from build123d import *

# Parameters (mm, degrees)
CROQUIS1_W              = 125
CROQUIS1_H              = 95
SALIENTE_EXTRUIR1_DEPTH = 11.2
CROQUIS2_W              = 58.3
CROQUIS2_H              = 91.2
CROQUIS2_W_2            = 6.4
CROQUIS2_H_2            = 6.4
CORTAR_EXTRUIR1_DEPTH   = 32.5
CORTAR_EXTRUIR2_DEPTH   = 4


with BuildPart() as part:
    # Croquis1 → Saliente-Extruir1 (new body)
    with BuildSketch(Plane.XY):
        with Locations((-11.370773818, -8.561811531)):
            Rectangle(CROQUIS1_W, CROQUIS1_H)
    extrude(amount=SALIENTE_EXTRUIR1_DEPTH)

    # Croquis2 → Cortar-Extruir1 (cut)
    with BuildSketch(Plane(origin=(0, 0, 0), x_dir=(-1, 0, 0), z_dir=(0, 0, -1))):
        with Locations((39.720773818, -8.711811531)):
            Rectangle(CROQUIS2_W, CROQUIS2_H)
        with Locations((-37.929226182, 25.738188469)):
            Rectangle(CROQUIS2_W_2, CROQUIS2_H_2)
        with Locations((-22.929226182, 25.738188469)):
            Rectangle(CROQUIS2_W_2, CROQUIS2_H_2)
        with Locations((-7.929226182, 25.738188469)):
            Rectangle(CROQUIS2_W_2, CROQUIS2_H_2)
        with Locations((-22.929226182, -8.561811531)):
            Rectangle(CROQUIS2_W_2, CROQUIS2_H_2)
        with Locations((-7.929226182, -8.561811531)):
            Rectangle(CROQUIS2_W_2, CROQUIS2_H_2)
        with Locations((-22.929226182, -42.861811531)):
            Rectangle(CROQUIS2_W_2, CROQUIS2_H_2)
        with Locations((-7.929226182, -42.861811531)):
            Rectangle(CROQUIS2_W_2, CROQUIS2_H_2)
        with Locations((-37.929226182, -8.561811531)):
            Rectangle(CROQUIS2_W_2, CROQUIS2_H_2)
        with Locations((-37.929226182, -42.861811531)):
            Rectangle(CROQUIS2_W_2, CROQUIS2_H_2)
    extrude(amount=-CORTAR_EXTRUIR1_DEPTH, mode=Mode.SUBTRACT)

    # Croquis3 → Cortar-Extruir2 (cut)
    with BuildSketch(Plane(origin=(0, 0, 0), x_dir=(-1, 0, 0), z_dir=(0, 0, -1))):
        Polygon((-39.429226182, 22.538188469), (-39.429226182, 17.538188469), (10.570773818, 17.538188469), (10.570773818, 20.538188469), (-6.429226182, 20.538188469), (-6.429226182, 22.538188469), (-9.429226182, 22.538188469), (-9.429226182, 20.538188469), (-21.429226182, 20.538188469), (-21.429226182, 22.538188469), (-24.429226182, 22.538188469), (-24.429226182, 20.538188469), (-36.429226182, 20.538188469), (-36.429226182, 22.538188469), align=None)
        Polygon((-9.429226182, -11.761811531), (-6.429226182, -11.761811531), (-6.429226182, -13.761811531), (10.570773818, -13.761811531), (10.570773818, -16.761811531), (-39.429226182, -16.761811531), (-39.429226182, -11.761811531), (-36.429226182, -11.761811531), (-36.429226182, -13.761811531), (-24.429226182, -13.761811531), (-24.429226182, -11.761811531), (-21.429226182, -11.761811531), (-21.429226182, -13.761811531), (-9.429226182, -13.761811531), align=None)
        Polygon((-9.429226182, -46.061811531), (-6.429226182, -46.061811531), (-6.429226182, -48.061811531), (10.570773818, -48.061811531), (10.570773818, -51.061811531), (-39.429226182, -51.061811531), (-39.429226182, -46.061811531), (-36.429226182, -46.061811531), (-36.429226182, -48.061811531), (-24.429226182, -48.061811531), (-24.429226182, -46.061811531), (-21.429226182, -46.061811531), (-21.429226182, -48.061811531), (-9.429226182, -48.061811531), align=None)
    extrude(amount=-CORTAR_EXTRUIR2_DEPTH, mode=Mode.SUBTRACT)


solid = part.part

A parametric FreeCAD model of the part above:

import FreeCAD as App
import Part
import Sketcher
from FreeCAD import Vector

doc = App.newDocument("Part")
body = doc.addObject("PartDesign::Body", "Body")

sketch1 = body.newObject("Sketcher::SketchObject", "Sketch")
sketch1.AttachmentSupport = (doc.getObject("XY_Plane"), [""])
sketch1.MapMode = "FlatFace"
sketch1.addGeometry([
    Part.LineSegment(Vector(-74, 39, 0), Vector(-74, -56, 0)),
    Part.LineSegment(Vector(-74, -56, 0), Vector(51, -56, 0)),
    Part.LineSegment(Vector(51, -56, 0), Vector(51, 39, 0)),
    Part.LineSegment(Vector(51, 39, 0), Vector(-74, 39, 0)),
], False)
sketch1.addConstraint([
    Sketcher.Constraint("Coincident", 0, 2, 1, 1),
    Sketcher.Constraint("Coincident", 1, 2, 2, 1),
    Sketcher.Constraint("Coincident", 2, 2, 3, 1),
    Sketcher.Constraint("Coincident", 3, 2, 0, 1),
    Sketcher.Constraint("Vertical", 0),
    Sketcher.Constraint("Horizontal", 1),
    Sketcher.Constraint("Vertical", 2),
    Sketcher.Constraint("Horizontal", 3),
    Sketcher.Constraint("DistanceX", 1, 1, 1, 2, 125.0),
    Sketcher.Constraint("DistanceY", 0, 2, 0, 1, 95.0),
    Sketcher.Constraint("DistanceY", 0, 2, -1, 1, 56.061812),
    Sketcher.Constraint("DistanceX", 0, 2, -1, 1, 73.870774),
])
pad1 = body.newObject("PartDesign::Pad", "Pad")
pad1.Profile = sketch1
pad1.Length = 11.2

sketch2 = body.newObject("Sketcher::SketchObject", "Sketch001")
sketch2.AttachmentSupport = (doc.getObject("XY_Plane"), [""])
sketch2.MapMode = "FlatFace"
sketch2.addGeometry([
    Part.LineSegment(Vector(-11, 37, 0), Vector(-11, -54, 0)),
    Part.LineSegment(Vector(-11, -54, 0), Vector(-69, -54, 0)),
    Part.LineSegment(Vector(-69, -54, 0), Vector(-69, 37, 0)),
    Part.LineSegment(Vector(-69, 37, 0), Vector(-11, 37, 0)),
    Part.LineSegment(Vector(41, 29, 0), Vector(41, 23, 0)),
    Part.LineSegment(Vector(41, 23, 0), Vector(35, 23, 0)),
    Part.LineSegment(Vector(35, 23, 0), Vector(35, 29, 0)),
    Part.LineSegment(Vector(35, 29, 0), Vector(41, 29, 0)),
    Part.LineSegment(Vector(26, 29, 0), Vector(26, 23, 0)),
    Part.LineSegment(Vector(26, 23, 0), Vector(20, 23, 0)),
    Part.LineSegment(Vector(20, 23, 0), Vector(20, 29, 0)),
    Part.LineSegment(Vector(20, 29, 0), Vector(26, 29, 0)),
    Part.LineSegment(Vector(11, 29, 0), Vector(11, 23, 0)),
    Part.LineSegment(Vector(11, 23, 0), Vector(5, 23, 0)),
    Part.LineSegment(Vector(5, 23, 0), Vector(5, 29, 0)),
    Part.LineSegment(Vector(5, 29, 0), Vector(11, 29, 0)),
    Part.LineSegment(Vector(26, -5, 0), Vector(26, -12, 0)),
    Part.LineSegment(Vector(26, -12, 0), Vector(20, -12, 0)),
    Part.LineSegment(Vector(20, -12, 0), Vector(20, -5, 0)),
    Part.LineSegment(Vector(20, -5, 0), Vector(26, -5, 0)),
    Part.LineSegment(Vector(11, -5, 0), Vector(11, -12, 0)),
    Part.LineSegment(Vector(11, -12, 0), Vector(5, -12, 0)),
    Part.LineSegment(Vector(5, -12, 0), Vector(5, -5, 0)),
    Part.LineSegment(Vector(5, -5, 0), Vector(11, -5, 0)),
    Part.LineSegment(Vector(26, -40, 0), Vector(26, -46, 0)),
    Part.LineSegment(Vector(26, -46, 0), Vector(20, -46, 0)),
    Part.LineSegment(Vector(20, -46, 0), Vector(20, -40, 0)),
    Part.LineSegment(Vector(20, -40, 0), Vector(26, -40, 0)),
    Part.LineSegment(Vector(11, -40, 0), Vector(11, -46, 0)),
    Part.LineSegment(Vector(11, -46, 0), Vector(5, -46, 0)),
    Part.LineSegment(Vector(5, -46, 0), Vector(5, -40, 0)),
    Part.LineSegment(Vector(5, -40, 0), Vector(11, -40, 0)),
    Part.LineSegment(Vector(41, -5, 0), Vector(41, -12, 0)),
    Part.LineSegment(Vector(41, -12, 0), Vector(35, -12, 0)),
    Part.LineSegment(Vector(35, -12, 0), Vector(35, -5, 0)),
    Part.LineSegment(Vector(35, -5, 0), Vector(41, -5, 0)),
    Part.LineSegment(Vector(41, -40, 0), Vector(41, -46, 0)),
    Part.LineSegment(Vector(41, -46, 0), Vector(35, -46, 0)),
    Part.LineSegment(Vector(35, -46, 0), Vector(35, -40, 0)),
    Part.LineSegment(Vector(35, -40, 0), Vector(41, -40, 0)),
], False)
sketch2.addConstraint([
    Sketcher.Constraint("Coincident", 0, 2, 1, 1),
    Sketcher.Constraint("Coincident", 1, 2, 2, 1),
    Sketcher.Constraint("Coincident", 2, 2, 3, 1),
    Sketcher.Constraint("Coincident", 3, 2, 0, 1),
    Sketcher.Constraint("Coincident", 4, 2, 5, 1),
    Sketcher.Constraint("Coincident", 5, 2, 6, 1),
    Sketcher.Constraint("Coincident", 6, 2, 7, 1),
    Sketcher.Constraint("Coincident", 7, 2, 4, 1),
    Sketcher.Constraint("Coincident", 8, 2, 9, 1),
    Sketcher.Constraint("Coincident", 9, 2, 10, 1),
    Sketcher.Constraint("Coincident", 10, 2, 11, 1),
    Sketcher.Constraint("Coincident", 11, 2, 8, 1),
    Sketcher.Constraint("Coincident", 12, 2, 13, 1),
    Sketcher.Constraint("Coincident", 13, 2, 14, 1),
    Sketcher.Constraint("Coincident", 14, 2, 15, 1),
    Sketcher.Constraint("Coincident", 15, 2, 12, 1),
    Sketcher.Constraint("Coincident", 16, 2, 17, 1),
    Sketcher.Constraint("Coincident", 17, 2, 18, 1),
    Sketcher.Constraint("Coincident", 18, 2, 19, 1),
    Sketcher.Constraint("Coincident", 19, 2, 16, 1),
    Sketcher.Constraint("Coincident", 20, 2, 21, 1),
    Sketcher.Constraint("Coincident", 21, 2, 22, 1),
    Sketcher.Constraint("Coincident", 22, 2, 23, 1),
    Sketcher.Constraint("Coincident", 23, 2, 20, 1),
    Sketcher.Constraint("Coincident", 24, 2, 25, 1),
    Sketcher.Constraint("Coincident", 25, 2, 26, 1),
    Sketcher.Constraint("Coincident", 26, 2, 27, 1),
    Sketcher.Constraint("Coincident", 27, 2, 24, 1),
    Sketcher.Constraint("Coincident", 28, 2, 29, 1),
    Sketcher.Constraint("Coincident", 29, 2, 30, 1),
    Sketcher.Constraint("Coincident", 30, 2, 31, 1),
    Sketcher.Constraint("Coincident", 31, 2, 28, 1),
    Sketcher.Constraint("Coincident", 32, 2, 33, 1),
    Sketcher.Constraint("Coincident", 33, 2, 34, 1),
    Sketcher.Constraint("Coincident", 34, 2, 35, 1),
    Sketcher.Constraint("Coincident", 35, 2, 32, 1),
    Sketcher.Constraint("Coincident", 36, 2, 37, 1),
    Sketcher.Constraint("Coincident", 37, 2, 38, 1),
    Sketcher.Constraint("Coincident", 38, 2, 39, 1),
    Sketcher.Constraint("Coincident", 39, 2, 36, 1),
    Sketcher.Constraint("Vertical", 0),
    Sketcher.Constraint("Horizontal", 1),
    Sketcher.Constraint("Vertical", 2),
    Sketcher.Constraint("Horizontal", 3),
    Sketcher.Constraint("Vertical", 4),
    Sketcher.Constraint("Horizontal", 5),
    Sketcher.Constraint("Vertical", 6),
    Sketcher.Constraint("Horizontal", 7),
    Sketcher.Constraint("Vertical", 8),
    Sketcher.Constraint("Horizontal", 9),
    Sketcher.Constraint("Vertical", 10),
    Sketcher.Constraint("Horizontal", 11),
    Sketcher.Constraint("Vertical", 12),
    Sketcher.Constraint("Horizontal", 13),
    Sketcher.Constraint("Vertical", 14),
    Sketcher.Constraint("Horizontal", 15),
    Sketcher.Constraint("Vertical", 16),
    Sketcher.Constraint("Horizontal", 17),
    Sketcher.Constraint("Vertical", 18),
    Sketcher.Constraint("Horizontal", 19),
    Sketcher.Constraint("Vertical", 20),
    Sketcher.Constraint("Horizontal", 21),
    Sketcher.Constraint("Vertical", 22),
    Sketcher.Constraint("Horizontal", 23),
    Sketcher.Constraint("Vertical", 24),
    Sketcher.Constraint("Horizontal", 25),
    Sketcher.Constraint("Vertical", 26),
    Sketcher.Constraint("Horizontal", 27),
    Sketcher.Constraint("Vertical", 28),
    Sketcher.Constraint("Horizontal", 29),
    Sketcher.Constraint("Vertical", 30),
    Sketcher.Constraint("Horizontal", 31),
    Sketcher.Constraint("Vertical", 32),
    Sketcher.Constraint("Horizontal", 33),
    Sketcher.Constraint("Vertical", 34),
    Sketcher.Constraint("Horizontal", 35),
    Sketcher.Constraint("Vertical", 36),
    Sketcher.Constraint("Horizontal", 37),
    Sketcher.Constraint("Vertical", 38),
    Sketcher.Constraint("Horizontal", 39),
    Sketcher.Constraint("Horizontal", 5, 2, 8, 2),
    Sketcher.Constraint("Horizontal", 7, 2, 10, 2),
    Sketcher.Constraint("Horizontal", 9, 2, 12, 2),
    Sketcher.Constraint("Horizontal", 11, 2, 14, 2),
    Sketcher.Constraint("Horizontal", 17, 2, 20, 2),
    Sketcher.Constraint("Horizontal", 19, 2, 22, 2),
    Sketcher.Constraint("Horizontal", 25, 2, 28, 2),
    Sketcher.Constraint("Horizontal", 27, 2, 30, 2),
    Sketcher.Constraint("Horizontal", 21, 2, 32, 2),
    Sketcher.Constraint("Horizontal", 23, 2, 34, 2),
    Sketcher.Constraint("Horizontal", 29, 2, 36, 2),
    Sketcher.Constraint("Horizontal", 31, 2, 38, 2),
    Sketcher.Constraint("Vertical", 11, 2, 16, 2),
    Sketcher.Constraint("Vertical", 10, 2, 17, 2),
    Sketcher.Constraint("Vertical", 15, 2, 20, 2),
    Sketcher.Constraint("Vertical", 14, 2, 21, 2),
    Sketcher.Constraint("Vertical", 19, 2, 24, 2),
    Sketcher.Constraint("Vertical", 18, 2, 25, 2),
    Sketcher.Constraint("Vertical", 23, 2, 28, 2),
    Sketcher.Constraint("Vertical", 22, 2, 29, 2),
    Sketcher.Constraint("Vertical", 7, 2, 32, 2),
    Sketcher.Constraint("Vertical", 6, 2, 33, 2),
    Sketcher.Constraint("Vertical", 35, 2, 36, 2),
    Sketcher.Constraint("Vertical", 34, 2, 37, 2),
    Sketcher.Constraint("Equal", 7, 9),
    Sketcher.Constraint("Equal", 11, 13),
    Sketcher.Constraint("Equal", 39, 4),
    Sketcher.Constraint("Equal", 14, 16),
    Sketcher.Constraint("Equal", 22, 24),
    Sketcher.Constraint("DistanceX", 1, 2, 1, 1, 58.3),
    Sketcher.Constraint("DistanceX", 5, 2, 5, 1, 6.4),
    Sketcher.Constraint("DistanceY", 0, 2, 0, 1, 91.2),
    Sketcher.Constraint("DistanceX", 2, 2, 4, 2, 110.0),
    Sketcher.Constraint("DistanceX", 8, 2, 4, 2, 15.0),
    Sketcher.Constraint("DistanceX", 12, 2, 8, 2, 15.0),
    Sketcher.Constraint("DistanceY", 16, 2, 8, 2, 34.3),
    Sketcher.Constraint("DistanceY", 24, 2, 16, 2, 34.3),
    Sketcher.Constraint("DistanceY", 4, 2, 3, 2, 14.35),
    Sketcher.Constraint("DistanceY", 0, 2, -1, 1, 54.311812),
    Sketcher.Constraint("DistanceX", 0, 2, -1, 1, 10.570774),
])
pocket1 = body.newObject("PartDesign::Pocket", "Pocket")
pocket1.Profile = sketch2
pocket1.Length = 32.5
pocket1.Reversed = True

sketch3 = body.newObject("Sketcher::SketchObject", "Sketch002")
sketch3.AttachmentSupport = (doc.getObject("XY_Plane"), [""])
sketch3.MapMode = "FlatFace"
sketch3.addGeometry([
    Part.LineSegment(Vector(39.4, 22.5, 0), Vector(39.4, 17.5, 0)),
    Part.LineSegment(Vector(39.4, 17.5, 0), Vector(-10.6, 17.5, 0)),
    Part.LineSegment(Vector(-10.6, 17.5, 0), Vector(-10.6, 20.5, 0)),
    Part.LineSegment(Vector(-10.6, 20.5, 0), Vector(6.4, 20.5, 0)),
    Part.LineSegment(Vector(6.4, 20.5, 0), Vector(6.4, 22.5, 0)),
    Part.LineSegment(Vector(6.4, 22.5, 0), Vector(9.4, 22.5, 0)),
    Part.LineSegment(Vector(9.4, 22.5, 0), Vector(9.4, 20.5, 0)),
    Part.LineSegment(Vector(9.4, 20.5, 0), Vector(21.4, 20.5, 0)),
    Part.LineSegment(Vector(21.4, 20.5, 0), Vector(21.4, 22.5, 0)),
    Part.LineSegment(Vector(21.4, 22.5, 0), Vector(24.4, 22.5, 0)),
    Part.LineSegment(Vector(24.4, 22.5, 0), Vector(24.4, 20.5, 0)),
    Part.LineSegment(Vector(24.4, 20.5, 0), Vector(36.4, 20.5, 0)),
    Part.LineSegment(Vector(36.4, 20.5, 0), Vector(36.4, 22.5, 0)),
    Part.LineSegment(Vector(36.4, 22.5, 0), Vector(39.4, 22.5, 0)),
    Part.LineSegment(Vector(6.4, -11.8, 0), Vector(9.4, -11.8, 0)),
    Part.LineSegment(Vector(9.4, -11.8, 0), Vector(9.4, -13.8, 0)),
    Part.LineSegment(Vector(9.4, -13.8, 0), Vector(21.4, -13.8, 0)),
    Part.LineSegment(Vector(21.4, -13.8, 0), Vector(21.4, -11.8, 0)),
    Part.LineSegment(Vector(21.4, -11.8, 0), Vector(24.4, -11.8, 0)),
    Part.LineSegment(Vector(24.4, -11.8, 0), Vector(24.4, -13.8, 0)),
    Part.LineSegment(Vector(24.4, -13.8, 0), Vector(36.4, -13.8, 0)),
    Part.LineSegment(Vector(36.4, -13.8, 0), Vector(36.4, -11.8, 0)),
    Part.LineSegment(Vector(36.4, -11.8, 0), Vector(39.4, -11.8, 0)),
    Part.LineSegment(Vector(39.4, -11.8, 0), Vector(39.4, -16.8, 0)),
    Part.LineSegment(Vector(39.4, -16.8, 0), Vector(-10.6, -16.8, 0)),
    Part.LineSegment(Vector(-10.6, -16.8, 0), Vector(-10.6, -13.8, 0)),
    Part.LineSegment(Vector(-10.6, -13.8, 0), Vector(6.4, -13.8, 0)),
    Part.LineSegment(Vector(6.4, -13.8, 0), Vector(6.4, -11.8, 0)),
    Part.LineSegment(Vector(6.4, -46.1, 0), Vector(9.4, -46.1, 0)),
    Part.LineSegment(Vector(9.4, -46.1, 0), Vector(9.4, -48.1, 0)),
    Part.LineSegment(Vector(9.4, -48.1, 0), Vector(21.4, -48.1, 0)),
    Part.LineSegment(Vector(21.4, -48.1, 0), Vector(21.4, -46.1, 0)),
    Part.LineSegment(Vector(21.4, -46.1, 0), Vector(24.4, -46.1, 0)),
    Part.LineSegment(Vector(24.4, -46.1, 0), Vector(24.4, -48.1, 0)),
    Part.LineSegment(Vector(24.4, -48.1, 0), Vector(36.4, -48.1, 0)),
    Part.LineSegment(Vector(36.4, -48.1, 0), Vector(36.4, -46.1, 0)),
    Part.LineSegment(Vector(36.4, -46.1, 0), Vector(39.4, -46.1, 0)),
    Part.LineSegment(Vector(39.4, -46.1, 0), Vector(39.4, -51.1, 0)),
    Part.LineSegment(Vector(39.4, -51.1, 0), Vector(-10.6, -51.1, 0)),
    Part.LineSegment(Vector(-10.6, -51.1, 0), Vector(-10.6, -48.1, 0)),
    Part.LineSegment(Vector(-10.6, -48.1, 0), Vector(6.4, -48.1, 0)),
    Part.LineSegment(Vector(6.4, -48.1, 0), Vector(6.4, -46.1, 0)),
], False)
sketch3.addConstraint([
    Sketcher.Constraint("Coincident", 0, 2, 1, 1),
    Sketcher.Constraint("Coincident", 1, 2, 2, 1),
    Sketcher.Constraint("Coincident", 2, 2, 3, 1),
    Sketcher.Constraint("Coincident", 3, 2, 4, 1),
    Sketcher.Constraint("Coincident", 4, 2, 5, 1),
    Sketcher.Constraint("Coincident", 5, 2, 6, 1),
    Sketcher.Constraint("Coincident", 6, 2, 7, 1),
    Sketcher.Constraint("Coincident", 7, 2, 8, 1),
    Sketcher.Constraint("Coincident", 8, 2, 9, 1),
    Sketcher.Constraint("Coincident", 9, 2, 10, 1),
    Sketcher.Constraint("Coincident", 10, 2, 11, 1),
    Sketcher.Constraint("Coincident", 11, 2, 12, 1),
    Sketcher.Constraint("Coincident", 12, 2, 13, 1),
    Sketcher.Constraint("Coincident", 13, 2, 0, 1),
    Sketcher.Constraint("Coincident", 14, 2, 15, 1),
    Sketcher.Constraint("Coincident", 15, 2, 16, 1),
    Sketcher.Constraint("Coincident", 16, 2, 17, 1),
    Sketcher.Constraint("Coincident", 17, 2, 18, 1),
    Sketcher.Constraint("Coincident", 18, 2, 19, 1),
    Sketcher.Constraint("Coincident", 19, 2, 20, 1),
    Sketcher.Constraint("Coincident", 20, 2, 21, 1),
    Sketcher.Constraint("Coincident", 21, 2, 22, 1),
    Sketcher.Constraint("Coincident", 22, 2, 23, 1),
    Sketcher.Constraint("Coincident", 23, 2, 24, 1),
    Sketcher.Constraint("Coincident", 24, 2, 25, 1),
    Sketcher.Constraint("Coincident", 25, 2, 26, 1),
    Sketcher.Constraint("Coincident", 26, 2, 27, 1),
    Sketcher.Constraint("Coincident", 27, 2, 14, 1),
    Sketcher.Constraint("Coincident", 28, 2, 29, 1),
    Sketcher.Constraint("Coincident", 29, 2, 30, 1),
    Sketcher.Constraint("Coincident", 30, 2, 31, 1),
    Sketcher.Constraint("Coincident", 31, 2, 32, 1),
    Sketcher.Constraint("Coincident", 32, 2, 33, 1),
    Sketcher.Constraint("Coincident", 33, 2, 34, 1),
    Sketcher.Constraint("Coincident", 34, 2, 35, 1),
    Sketcher.Constraint("Coincident", 35, 2, 36, 1),
    Sketcher.Constraint("Coincident", 36, 2, 37, 1),
    Sketcher.Constraint("Coincident", 37, 2, 38, 1),
    Sketcher.Constraint("Coincident", 38, 2, 39, 1),
    Sketcher.Constraint("Coincident", 39, 2, 40, 1),
    Sketcher.Constraint("Coincident", 40, 2, 41, 1),
    Sketcher.Constraint("Coincident", 41, 2, 28, 1),
    Sketcher.Constraint("Vertical", 0),
    Sketcher.Constraint("Horizontal", 1),
    Sketcher.Constraint("Vertical", 2),
    Sketcher.Constraint("Horizontal", 3),
    Sketcher.Constraint("Vertical", 4),
    Sketcher.Constraint("Horizontal", 5),
    Sketcher.Constraint("Vertical", 6),
    Sketcher.Constraint("Horizontal", 7),
    Sketcher.Constraint("Vertical", 8),
    Sketcher.Constraint("Horizontal", 9),
    Sketcher.Constraint("Vertical", 10),
    Sketcher.Constraint("Horizontal", 11),
    Sketcher.Constraint("Vertical", 12),
    Sketcher.Constraint("Horizontal", 13),
    Sketcher.Constraint("Horizontal", 14),
    Sketcher.Constraint("Vertical", 15),
    Sketcher.Constraint("Horizontal", 16),
    Sketcher.Constraint("Vertical", 17),
    Sketcher.Constraint("Horizontal", 18),
    Sketcher.Constraint("Vertical", 19),
    Sketcher.Constraint("Horizontal", 20),
    Sketcher.Constraint("Vertical", 21),
    Sketcher.Constraint("Horizontal", 22),
    Sketcher.Constraint("Vertical", 23),
    Sketcher.Constraint("Horizontal", 24),
    Sketcher.Constraint("Vertical", 25),
    Sketcher.Constraint("Horizontal", 26),
    Sketcher.Constraint("Vertical", 27),
    Sketcher.Constraint("Horizontal", 28),
    Sketcher.Constraint("Vertical", 29),
    Sketcher.Constraint("Horizontal", 30),
    Sketcher.Constraint("Vertical", 31),
    Sketcher.Constraint("Horizontal", 32),
    Sketcher.Constraint("Vertical", 33),
    Sketcher.Constraint("Horizontal", 34),
    Sketcher.Constraint("Vertical", 35),
    Sketcher.Constraint("Horizontal", 36),
    Sketcher.Constraint("Vertical", 37),
    Sketcher.Constraint("Horizontal", 38),
    Sketcher.Constraint("Vertical", 39),
    Sketcher.Constraint("Horizontal", 40),
    Sketcher.Constraint("Vertical", 41),
    Sketcher.Constraint("Horizontal", 3, 2, 6, 2),
    Sketcher.Constraint("Horizontal", 5, 2, 8, 2),
    Sketcher.Constraint("Horizontal", 7, 2, 10, 2),
    Sketcher.Constraint("Horizontal", 9, 2, 12, 2),
    Sketcher.Constraint("Horizontal", 14, 2, 17, 2),
    Sketcher.Constraint("Horizontal", 16, 2, 19, 2),
    Sketcher.Constraint("Horizontal", 18, 2, 21, 2),
    Sketcher.Constraint("Horizontal", 20, 2, 25, 2),
    Sketcher.Constraint("Horizontal", 28, 2, 31, 2),
    Sketcher.Constraint("Horizontal", 30, 2, 33, 2),
    Sketcher.Constraint("Horizontal", 32, 2, 35, 2),
    Sketcher.Constraint("Horizontal", 34, 2, 39, 2),
    Sketcher.Constraint("Vertical", 6, 2, 14, 2),
    Sketcher.Constraint("Vertical", 8, 2, 16, 2),
    Sketcher.Constraint("Vertical", 10, 2, 18, 2),
    Sketcher.Constraint("Vertical", 12, 2, 20, 2),
    Sketcher.Constraint("Vertical", 13, 2, 22, 2),
    Sketcher.Constraint("Vertical", 2, 2, 24, 2),
    Sketcher.Constraint("Vertical", 4, 2, 26, 2),
    Sketcher.Constraint("Vertical", 15, 2, 28, 2),
    Sketcher.Constraint("Vertical", 17, 2, 30, 2),
    Sketcher.Constraint("Vertical", 19, 2, 32, 2),
    Sketcher.Constraint("Vertical", 21, 2, 34, 2),
    Sketcher.Constraint("Vertical", 23, 2, 36, 2),
    Sketcher.Constraint("Vertical", 25, 2, 38, 2),
    Sketcher.Constraint("Vertical", 27, 2, 40, 2),
    Sketcher.Constraint("Equal", 5, 9),
    Sketcher.Constraint("Equal", 7, 11),
    Sketcher.Constraint("Equal", 9, 13),
    Sketcher.Constraint("Equal", 36, 2),
    Sketcher.Constraint("Equal", 12, 15),
    Sketcher.Constraint("Equal", 0, 23),
    Sketcher.Constraint("Equal", 27, 29),
    Sketcher.Constraint("Equal", 23, 37),
    Sketcher.Constraint("DistanceX", 1, 2, 1, 1, 50.0),
    Sketcher.Constraint("DistanceX", 3, 1, 3, 2, 17.0),
    Sketcher.Constraint("DistanceX", 5, 1, 5, 2, 3.0),
    Sketcher.Constraint("DistanceY", 0, 2, 0, 1, 5.0),
    Sketcher.Constraint("DistanceY", 14, 2, 6, 2, 32.3),
    Sketcher.Constraint("DistanceY", 28, 2, 15, 2, 32.3),
    Sketcher.Constraint("DistanceY", -1, 1, 0, 2, 17.538188),
    Sketcher.Constraint("DistanceX", -1, 1, 0, 2, 39.429226),
])
pocket2 = body.newObject("PartDesign::Pocket", "Pocket001")
pocket2.Profile = sketch3
pocket2.Length = 4
pocket2.Reversed = True

doc.recompute()
